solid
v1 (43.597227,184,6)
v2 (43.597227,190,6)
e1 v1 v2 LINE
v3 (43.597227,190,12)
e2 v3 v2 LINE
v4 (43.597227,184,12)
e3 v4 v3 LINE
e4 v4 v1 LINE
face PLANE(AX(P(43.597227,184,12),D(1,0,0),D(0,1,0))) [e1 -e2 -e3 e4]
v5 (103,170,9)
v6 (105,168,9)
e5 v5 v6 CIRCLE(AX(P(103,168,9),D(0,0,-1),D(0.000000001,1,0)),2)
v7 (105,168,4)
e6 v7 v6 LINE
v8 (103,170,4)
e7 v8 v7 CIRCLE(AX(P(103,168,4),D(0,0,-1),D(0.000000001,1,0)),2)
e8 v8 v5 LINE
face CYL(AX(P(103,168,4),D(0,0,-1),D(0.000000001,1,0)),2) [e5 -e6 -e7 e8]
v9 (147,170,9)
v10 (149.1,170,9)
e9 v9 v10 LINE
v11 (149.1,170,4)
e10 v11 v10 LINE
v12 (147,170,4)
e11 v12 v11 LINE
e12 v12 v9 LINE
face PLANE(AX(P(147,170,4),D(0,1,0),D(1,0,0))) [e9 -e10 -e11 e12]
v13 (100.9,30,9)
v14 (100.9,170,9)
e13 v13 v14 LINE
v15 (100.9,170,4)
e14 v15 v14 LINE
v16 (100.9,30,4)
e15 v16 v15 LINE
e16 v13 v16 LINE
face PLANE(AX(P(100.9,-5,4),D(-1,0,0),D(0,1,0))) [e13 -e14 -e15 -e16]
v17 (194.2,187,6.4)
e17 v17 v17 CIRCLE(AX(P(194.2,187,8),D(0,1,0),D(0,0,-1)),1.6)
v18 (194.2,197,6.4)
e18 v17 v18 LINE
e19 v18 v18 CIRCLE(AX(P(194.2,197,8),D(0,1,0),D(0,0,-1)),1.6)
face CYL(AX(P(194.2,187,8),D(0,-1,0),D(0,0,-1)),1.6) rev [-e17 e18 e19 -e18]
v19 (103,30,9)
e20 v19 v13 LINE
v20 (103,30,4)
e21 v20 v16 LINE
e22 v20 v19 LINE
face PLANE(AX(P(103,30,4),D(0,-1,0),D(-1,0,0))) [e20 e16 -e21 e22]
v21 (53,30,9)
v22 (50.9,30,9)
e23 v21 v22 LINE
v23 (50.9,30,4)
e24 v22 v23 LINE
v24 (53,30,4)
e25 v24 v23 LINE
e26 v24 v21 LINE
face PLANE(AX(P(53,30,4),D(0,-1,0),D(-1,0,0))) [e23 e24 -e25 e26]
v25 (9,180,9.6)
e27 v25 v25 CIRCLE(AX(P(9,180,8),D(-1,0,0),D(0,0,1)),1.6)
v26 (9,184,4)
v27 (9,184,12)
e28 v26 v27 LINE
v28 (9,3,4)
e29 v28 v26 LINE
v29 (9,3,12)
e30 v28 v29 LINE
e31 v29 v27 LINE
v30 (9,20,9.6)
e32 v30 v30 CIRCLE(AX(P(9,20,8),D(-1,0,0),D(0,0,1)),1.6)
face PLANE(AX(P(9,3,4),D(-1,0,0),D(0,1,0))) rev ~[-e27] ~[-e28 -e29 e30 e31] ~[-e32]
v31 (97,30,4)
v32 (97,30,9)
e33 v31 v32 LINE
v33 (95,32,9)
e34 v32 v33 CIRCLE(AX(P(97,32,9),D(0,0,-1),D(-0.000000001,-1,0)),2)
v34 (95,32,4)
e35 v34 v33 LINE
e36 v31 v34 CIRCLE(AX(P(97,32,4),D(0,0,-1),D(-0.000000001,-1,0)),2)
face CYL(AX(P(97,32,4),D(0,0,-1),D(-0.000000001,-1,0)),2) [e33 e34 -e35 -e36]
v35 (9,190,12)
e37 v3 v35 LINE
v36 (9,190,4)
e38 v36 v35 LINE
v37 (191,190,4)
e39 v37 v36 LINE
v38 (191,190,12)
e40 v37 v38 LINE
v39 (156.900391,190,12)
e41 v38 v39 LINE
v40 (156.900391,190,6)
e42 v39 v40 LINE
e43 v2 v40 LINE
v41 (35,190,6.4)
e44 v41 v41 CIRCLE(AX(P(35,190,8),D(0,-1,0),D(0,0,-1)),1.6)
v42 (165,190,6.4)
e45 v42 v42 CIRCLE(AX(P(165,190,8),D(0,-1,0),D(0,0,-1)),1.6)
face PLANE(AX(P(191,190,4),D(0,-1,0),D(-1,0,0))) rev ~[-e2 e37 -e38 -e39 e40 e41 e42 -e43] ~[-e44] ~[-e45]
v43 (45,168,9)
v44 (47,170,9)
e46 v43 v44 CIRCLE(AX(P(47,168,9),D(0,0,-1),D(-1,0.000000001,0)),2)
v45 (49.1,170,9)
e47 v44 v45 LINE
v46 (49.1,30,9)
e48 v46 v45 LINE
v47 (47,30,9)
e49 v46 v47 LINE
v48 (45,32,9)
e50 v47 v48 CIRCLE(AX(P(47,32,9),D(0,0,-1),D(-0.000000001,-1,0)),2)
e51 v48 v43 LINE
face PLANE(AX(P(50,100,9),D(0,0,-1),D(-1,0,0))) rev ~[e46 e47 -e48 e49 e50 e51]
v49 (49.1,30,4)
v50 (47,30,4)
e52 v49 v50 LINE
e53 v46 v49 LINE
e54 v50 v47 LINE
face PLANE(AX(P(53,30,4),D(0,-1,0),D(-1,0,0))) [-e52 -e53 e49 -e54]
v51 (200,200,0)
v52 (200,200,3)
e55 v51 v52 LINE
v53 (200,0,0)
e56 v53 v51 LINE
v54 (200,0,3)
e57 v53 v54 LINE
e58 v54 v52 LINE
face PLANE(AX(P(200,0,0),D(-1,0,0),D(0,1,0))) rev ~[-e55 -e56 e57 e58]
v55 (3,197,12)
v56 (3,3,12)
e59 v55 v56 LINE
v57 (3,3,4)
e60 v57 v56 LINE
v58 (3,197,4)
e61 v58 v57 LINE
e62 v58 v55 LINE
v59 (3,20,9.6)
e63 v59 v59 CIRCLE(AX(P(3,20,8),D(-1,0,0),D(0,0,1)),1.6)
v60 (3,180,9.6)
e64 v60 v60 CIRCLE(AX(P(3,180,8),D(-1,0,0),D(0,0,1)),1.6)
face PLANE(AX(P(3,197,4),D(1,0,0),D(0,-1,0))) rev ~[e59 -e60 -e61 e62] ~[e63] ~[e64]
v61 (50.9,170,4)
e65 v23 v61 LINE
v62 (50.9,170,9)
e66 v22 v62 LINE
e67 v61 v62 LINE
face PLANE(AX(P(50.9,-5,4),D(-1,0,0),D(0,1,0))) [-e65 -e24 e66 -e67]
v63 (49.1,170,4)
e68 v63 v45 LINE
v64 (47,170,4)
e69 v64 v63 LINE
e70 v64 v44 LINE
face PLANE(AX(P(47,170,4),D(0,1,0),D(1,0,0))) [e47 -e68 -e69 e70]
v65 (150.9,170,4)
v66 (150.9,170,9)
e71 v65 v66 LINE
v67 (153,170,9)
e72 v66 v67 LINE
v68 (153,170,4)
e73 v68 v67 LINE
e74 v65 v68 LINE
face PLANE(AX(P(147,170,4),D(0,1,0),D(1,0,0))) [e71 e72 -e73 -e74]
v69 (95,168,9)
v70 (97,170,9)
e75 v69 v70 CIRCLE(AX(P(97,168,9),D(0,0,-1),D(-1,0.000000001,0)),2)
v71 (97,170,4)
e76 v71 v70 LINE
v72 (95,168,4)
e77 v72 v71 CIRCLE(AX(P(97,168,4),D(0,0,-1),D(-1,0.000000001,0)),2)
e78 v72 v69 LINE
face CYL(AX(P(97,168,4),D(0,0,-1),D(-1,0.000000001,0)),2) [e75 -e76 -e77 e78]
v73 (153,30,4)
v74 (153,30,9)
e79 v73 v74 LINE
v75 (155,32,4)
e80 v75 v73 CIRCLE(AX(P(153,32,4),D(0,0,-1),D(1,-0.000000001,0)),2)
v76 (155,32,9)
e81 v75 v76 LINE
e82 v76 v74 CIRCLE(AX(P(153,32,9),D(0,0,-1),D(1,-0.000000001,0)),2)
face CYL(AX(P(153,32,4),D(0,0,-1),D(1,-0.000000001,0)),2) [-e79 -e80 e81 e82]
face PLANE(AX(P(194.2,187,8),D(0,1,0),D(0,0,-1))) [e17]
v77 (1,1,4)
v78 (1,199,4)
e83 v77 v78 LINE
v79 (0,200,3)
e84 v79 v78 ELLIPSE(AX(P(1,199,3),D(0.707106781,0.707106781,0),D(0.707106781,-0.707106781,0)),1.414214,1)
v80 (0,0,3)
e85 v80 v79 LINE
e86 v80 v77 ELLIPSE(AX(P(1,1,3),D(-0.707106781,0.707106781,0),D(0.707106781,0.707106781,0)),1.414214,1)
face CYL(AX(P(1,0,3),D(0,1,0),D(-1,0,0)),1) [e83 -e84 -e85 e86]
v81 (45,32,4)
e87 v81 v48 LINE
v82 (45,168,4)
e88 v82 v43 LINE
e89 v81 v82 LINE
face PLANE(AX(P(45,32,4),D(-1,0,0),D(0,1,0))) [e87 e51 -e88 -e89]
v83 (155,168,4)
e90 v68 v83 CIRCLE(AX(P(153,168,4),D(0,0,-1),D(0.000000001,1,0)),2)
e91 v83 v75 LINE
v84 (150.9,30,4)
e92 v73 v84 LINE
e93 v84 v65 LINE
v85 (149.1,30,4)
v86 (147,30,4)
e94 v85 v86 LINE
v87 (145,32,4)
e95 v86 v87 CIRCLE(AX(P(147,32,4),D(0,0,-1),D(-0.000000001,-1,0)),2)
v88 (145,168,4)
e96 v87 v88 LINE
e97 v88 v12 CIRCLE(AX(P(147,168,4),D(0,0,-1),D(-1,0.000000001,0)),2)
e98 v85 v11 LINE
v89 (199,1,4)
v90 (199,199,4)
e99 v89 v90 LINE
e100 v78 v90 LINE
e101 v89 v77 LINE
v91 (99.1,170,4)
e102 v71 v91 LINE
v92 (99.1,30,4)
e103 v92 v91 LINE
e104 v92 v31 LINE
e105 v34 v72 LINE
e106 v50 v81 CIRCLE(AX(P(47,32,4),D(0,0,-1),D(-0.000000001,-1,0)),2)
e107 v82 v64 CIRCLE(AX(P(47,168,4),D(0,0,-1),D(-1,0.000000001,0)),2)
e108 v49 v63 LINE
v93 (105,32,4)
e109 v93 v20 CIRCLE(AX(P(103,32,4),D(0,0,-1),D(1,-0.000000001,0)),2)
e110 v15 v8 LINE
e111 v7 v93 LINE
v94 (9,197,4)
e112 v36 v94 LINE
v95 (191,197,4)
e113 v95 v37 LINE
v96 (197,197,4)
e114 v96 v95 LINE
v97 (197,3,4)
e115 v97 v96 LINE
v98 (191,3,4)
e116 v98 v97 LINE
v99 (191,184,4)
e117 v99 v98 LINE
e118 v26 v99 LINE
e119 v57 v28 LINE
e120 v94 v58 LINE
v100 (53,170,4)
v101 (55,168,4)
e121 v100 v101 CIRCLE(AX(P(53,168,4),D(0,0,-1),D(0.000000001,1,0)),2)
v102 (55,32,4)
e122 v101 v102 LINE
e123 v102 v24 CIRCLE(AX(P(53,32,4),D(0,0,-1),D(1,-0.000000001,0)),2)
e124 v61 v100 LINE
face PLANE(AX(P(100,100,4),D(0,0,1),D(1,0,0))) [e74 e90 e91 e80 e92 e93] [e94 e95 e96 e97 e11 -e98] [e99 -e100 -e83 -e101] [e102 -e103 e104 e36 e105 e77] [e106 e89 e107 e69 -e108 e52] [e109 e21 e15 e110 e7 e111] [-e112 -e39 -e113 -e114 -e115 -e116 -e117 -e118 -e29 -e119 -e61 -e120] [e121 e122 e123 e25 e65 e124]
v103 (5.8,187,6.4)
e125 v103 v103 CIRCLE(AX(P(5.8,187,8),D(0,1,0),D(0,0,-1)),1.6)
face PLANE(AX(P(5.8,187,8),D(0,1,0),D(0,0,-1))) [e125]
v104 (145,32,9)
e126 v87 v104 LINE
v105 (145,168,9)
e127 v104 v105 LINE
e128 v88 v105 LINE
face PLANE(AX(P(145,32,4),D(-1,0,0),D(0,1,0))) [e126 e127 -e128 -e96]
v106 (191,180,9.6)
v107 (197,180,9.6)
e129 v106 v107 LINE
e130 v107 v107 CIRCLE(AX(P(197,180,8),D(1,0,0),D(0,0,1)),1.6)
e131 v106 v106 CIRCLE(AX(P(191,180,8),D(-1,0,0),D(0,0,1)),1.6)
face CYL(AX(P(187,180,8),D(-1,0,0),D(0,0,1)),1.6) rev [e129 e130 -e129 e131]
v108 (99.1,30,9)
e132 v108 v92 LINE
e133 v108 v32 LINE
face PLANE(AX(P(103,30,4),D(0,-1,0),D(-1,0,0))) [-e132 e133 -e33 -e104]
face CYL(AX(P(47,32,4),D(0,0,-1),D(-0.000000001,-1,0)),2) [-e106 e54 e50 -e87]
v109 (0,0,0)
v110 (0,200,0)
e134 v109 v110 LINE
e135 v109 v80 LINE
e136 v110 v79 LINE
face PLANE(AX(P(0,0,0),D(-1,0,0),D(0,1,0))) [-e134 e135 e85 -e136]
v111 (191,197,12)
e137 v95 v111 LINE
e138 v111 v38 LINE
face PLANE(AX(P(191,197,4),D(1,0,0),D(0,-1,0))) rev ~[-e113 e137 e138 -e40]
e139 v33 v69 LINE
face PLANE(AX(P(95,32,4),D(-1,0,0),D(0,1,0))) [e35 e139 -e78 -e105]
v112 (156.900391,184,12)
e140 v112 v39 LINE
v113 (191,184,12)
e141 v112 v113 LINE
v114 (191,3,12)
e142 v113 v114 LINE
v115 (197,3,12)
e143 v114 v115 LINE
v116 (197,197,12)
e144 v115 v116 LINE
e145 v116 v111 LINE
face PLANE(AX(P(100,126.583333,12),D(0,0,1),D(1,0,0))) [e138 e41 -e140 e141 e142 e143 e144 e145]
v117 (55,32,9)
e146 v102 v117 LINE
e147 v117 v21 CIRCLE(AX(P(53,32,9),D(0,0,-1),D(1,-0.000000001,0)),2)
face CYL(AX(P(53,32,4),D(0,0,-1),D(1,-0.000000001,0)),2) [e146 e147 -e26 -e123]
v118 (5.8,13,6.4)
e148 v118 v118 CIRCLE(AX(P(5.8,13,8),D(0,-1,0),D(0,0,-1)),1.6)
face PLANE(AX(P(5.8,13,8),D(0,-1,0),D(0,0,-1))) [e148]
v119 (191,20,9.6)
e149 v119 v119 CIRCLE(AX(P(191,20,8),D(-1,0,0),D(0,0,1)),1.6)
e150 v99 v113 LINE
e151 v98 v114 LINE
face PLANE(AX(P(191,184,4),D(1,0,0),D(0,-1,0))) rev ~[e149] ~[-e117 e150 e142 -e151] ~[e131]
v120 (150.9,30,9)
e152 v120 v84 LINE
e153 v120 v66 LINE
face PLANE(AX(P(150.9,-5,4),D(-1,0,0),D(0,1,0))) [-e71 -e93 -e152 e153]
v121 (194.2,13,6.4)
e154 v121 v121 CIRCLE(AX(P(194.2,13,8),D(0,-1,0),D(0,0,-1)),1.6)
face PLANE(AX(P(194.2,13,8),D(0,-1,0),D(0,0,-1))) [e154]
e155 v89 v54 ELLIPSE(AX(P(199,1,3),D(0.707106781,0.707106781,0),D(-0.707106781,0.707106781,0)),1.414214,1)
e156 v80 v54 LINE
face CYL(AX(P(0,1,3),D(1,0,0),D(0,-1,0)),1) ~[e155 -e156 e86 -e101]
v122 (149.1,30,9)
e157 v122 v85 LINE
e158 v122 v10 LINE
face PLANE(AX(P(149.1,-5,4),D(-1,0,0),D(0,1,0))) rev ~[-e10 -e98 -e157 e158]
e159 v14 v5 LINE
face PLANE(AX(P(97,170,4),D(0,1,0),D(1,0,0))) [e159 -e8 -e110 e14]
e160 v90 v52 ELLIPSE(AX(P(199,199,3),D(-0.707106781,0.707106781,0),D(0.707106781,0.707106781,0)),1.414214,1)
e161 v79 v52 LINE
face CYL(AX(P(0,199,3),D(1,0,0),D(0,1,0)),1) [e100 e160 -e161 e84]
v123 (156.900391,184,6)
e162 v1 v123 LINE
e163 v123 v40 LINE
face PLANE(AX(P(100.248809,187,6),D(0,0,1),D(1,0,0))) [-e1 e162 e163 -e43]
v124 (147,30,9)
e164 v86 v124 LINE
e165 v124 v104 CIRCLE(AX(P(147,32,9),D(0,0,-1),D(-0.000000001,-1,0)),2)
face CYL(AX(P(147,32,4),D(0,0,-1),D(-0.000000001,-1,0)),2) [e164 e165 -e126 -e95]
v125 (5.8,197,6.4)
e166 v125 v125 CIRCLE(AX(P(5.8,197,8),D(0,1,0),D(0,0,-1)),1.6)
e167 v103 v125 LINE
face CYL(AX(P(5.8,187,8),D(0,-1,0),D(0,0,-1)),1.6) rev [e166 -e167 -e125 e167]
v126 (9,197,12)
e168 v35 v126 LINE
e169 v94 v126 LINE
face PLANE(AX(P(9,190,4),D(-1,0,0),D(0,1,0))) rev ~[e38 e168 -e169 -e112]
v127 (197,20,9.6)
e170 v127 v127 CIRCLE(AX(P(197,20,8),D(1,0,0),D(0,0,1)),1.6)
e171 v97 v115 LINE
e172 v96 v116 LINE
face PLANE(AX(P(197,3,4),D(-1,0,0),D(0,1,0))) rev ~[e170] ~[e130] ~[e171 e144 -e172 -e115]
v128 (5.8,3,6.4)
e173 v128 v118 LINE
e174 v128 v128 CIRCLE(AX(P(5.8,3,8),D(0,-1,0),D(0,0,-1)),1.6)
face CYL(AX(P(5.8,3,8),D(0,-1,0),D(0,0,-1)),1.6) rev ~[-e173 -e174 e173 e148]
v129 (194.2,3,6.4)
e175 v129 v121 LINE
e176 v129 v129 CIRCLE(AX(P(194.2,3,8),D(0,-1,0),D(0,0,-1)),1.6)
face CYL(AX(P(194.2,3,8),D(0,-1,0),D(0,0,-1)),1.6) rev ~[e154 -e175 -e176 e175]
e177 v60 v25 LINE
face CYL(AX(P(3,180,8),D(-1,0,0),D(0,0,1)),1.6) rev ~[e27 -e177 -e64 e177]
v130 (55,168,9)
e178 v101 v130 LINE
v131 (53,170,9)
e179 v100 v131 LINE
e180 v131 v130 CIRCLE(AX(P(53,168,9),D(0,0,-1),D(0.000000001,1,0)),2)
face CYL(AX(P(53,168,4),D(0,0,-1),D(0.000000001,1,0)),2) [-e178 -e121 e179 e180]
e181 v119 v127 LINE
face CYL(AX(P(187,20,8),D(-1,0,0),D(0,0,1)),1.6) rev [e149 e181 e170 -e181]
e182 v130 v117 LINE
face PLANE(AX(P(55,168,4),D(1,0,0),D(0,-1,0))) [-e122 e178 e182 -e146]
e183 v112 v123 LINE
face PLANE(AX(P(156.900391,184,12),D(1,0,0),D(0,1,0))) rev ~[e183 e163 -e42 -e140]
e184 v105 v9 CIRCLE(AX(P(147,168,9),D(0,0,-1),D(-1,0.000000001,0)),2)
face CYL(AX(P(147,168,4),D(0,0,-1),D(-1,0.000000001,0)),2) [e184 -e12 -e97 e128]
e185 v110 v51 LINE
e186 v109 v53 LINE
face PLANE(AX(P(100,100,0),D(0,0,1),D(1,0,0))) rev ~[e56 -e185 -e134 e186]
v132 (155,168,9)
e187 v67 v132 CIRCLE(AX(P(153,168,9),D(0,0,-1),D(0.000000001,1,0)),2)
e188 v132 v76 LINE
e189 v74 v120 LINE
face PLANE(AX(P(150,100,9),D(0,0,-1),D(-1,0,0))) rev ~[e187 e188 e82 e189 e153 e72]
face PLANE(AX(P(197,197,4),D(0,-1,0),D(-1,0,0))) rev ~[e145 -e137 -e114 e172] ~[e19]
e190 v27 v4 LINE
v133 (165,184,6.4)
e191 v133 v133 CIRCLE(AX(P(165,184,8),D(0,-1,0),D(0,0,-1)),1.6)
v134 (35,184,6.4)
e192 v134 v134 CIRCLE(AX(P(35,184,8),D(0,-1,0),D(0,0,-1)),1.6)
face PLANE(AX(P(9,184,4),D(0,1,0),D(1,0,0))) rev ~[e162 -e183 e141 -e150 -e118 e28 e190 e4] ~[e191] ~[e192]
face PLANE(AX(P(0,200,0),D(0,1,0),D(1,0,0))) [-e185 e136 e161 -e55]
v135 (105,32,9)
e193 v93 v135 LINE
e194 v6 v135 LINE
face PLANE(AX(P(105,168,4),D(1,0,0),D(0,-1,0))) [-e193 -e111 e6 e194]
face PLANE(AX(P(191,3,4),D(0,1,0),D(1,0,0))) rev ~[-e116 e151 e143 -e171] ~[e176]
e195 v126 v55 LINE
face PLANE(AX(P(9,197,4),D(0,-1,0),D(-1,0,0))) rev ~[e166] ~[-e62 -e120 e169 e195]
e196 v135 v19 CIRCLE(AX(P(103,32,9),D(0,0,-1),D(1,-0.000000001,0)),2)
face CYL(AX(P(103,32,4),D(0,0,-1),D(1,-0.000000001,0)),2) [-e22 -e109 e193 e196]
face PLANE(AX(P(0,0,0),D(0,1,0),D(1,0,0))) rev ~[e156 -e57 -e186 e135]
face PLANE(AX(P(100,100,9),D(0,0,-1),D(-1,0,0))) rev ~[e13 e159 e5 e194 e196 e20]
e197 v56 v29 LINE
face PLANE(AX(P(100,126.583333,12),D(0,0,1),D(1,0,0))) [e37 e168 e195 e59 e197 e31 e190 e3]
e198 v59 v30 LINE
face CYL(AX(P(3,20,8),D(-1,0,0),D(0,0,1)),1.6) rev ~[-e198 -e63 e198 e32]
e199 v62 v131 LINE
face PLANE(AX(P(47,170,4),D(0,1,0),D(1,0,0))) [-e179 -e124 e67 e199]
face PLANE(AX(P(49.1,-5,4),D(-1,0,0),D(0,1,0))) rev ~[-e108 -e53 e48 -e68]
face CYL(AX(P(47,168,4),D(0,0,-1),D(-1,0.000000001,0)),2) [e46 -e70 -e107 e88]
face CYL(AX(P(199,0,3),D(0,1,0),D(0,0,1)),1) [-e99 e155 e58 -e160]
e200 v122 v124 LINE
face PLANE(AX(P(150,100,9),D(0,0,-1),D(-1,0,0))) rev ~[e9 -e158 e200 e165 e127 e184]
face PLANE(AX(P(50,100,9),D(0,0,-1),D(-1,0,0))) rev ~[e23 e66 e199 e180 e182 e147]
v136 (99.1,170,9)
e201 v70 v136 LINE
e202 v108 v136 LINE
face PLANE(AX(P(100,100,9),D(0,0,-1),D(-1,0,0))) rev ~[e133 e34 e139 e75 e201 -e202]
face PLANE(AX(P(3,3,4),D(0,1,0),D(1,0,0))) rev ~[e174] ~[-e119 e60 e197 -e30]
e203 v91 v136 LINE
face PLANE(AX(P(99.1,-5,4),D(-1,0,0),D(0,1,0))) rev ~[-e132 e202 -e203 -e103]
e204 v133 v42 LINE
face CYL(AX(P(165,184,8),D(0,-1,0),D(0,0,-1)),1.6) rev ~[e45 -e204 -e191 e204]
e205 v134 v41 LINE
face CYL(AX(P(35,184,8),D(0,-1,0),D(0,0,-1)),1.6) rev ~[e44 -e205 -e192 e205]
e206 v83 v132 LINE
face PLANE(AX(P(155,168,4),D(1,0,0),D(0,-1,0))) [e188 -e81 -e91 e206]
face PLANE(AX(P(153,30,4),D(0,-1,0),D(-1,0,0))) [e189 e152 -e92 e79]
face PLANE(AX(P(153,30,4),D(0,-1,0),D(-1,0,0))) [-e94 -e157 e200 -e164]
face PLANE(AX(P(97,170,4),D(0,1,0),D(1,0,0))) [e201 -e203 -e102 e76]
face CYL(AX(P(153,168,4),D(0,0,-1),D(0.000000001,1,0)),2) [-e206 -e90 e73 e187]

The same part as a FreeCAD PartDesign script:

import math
import FreeCAD as App
import Part
import Sketcher

V = App.Vector


def edges_at(feature, points):
    """Names of the edges that pass closest to the given points."""
    edges = feature.Shape.Edges
    near = lambda p: min(range(len(edges)), key=lambda i: edges[i].distToShape(Part.Vertex(*p))[0])
    return sorted({f"Edge{near(p) + 1}" for p in points})

doc = App.newDocument("Part")
body = doc.addObject("PartDesign::Body", "Body")

# Sketch on XY plane
sketch1 = body.newObject("Sketcher::SketchObject", "Sketch")
sketch1.AttachmentSupport = (doc.getObject("XY_Plane"), [""])
sketch1.MapMode = "FlatFace"
sketch1.addGeometry(Part.LineSegment(V(0, 200, 0), V(0, 0, 0)), False)
sketch1.addGeometry(Part.LineSegment(V(0, 0, 0), V(200, 0, 0)), False)
sketch1.addGeometry(Part.LineSegment(V(200, 0, 0), V(200, 200, 0)), False)
sketch1.addGeometry(Part.LineSegment(V(200, 200, 0), V(0, 200, 0)), False)
sketch1.addConstraint(Sketcher.Constraint("Coincident", 0, 2, 1, 1))
sketch1.addConstraint(Sketcher.Constraint("Coincident", 1, 2, 2, 1))
sketch1.addConstraint(Sketcher.Constraint("Coincident", 2, 2, 3, 1))
sketch1.addConstraint(Sketcher.Constraint("Coincident", 3, 2, 0, 1))
sketch1.addConstraint(Sketcher.Constraint("Vertical", 0))
sketch1.addConstraint(Sketcher.Constraint("Horizontal", 1))
sketch1.addConstraint(Sketcher.Constraint("Vertical", 2))
sketch1.addConstraint(Sketcher.Constraint("Horizontal", 3))
sketch1.addConstraint(Sketcher.Constraint("Coincident", 0, 2, -1, 1))
sketch1.addConstraint(Sketcher.Constraint("Equal", 3, 0))
sketch1.addConstraint(Sketcher.Constraint("DistanceX", 1, 1, 1, 2, 200.0))
pad1 = body.newObject("PartDesign::Pad", "Pad")
pad1.Profile = sketch1
pad1.Length = 4

# Sketch on XY plane
sketch2 = body.newObject("Sketcher::SketchObject", "Sketch001")
sketch2.AttachmentSupport = (doc.getObject("XY_Plane"), [""])
sketch2.MapMode = "FlatFace"
sketch2.AttachmentOffset = App.Placement(V(0, 0, 4), App.Rotation())
sketch2.addGeometry(Part.LineSegment(V(3, 3, 0), V(9, 3, 0)), False)
sketch2.addGeometry(Part.LineSegment(V(9, 3, 0), V(9, 184, 0)), False)
sketch2.addGeometry(Part.LineSegment(V(9, 184, 0), V(191, 184, 0)), False)
sketch2.addGeometry(Part.LineSegment(V(191, 184, 0), V(191, 3, 0)), False)
sketch2.addGeometry(Part.LineSegment(V(191, 3, 0), V(197, 3, 0)), False)
sketch2.addGeometry(Part.LineSegment(V(197, 3, 0), V(197, 197, 0)), False)
sketch2.addGeometry(Part.LineSegment(V(197, 197, 0), V(191, 197, 0)), False)
sketch2.addGeometry(Part.LineSegment(V(191, 197, 0), V(191, 190, 0)), False)
sketch2.addGeometry(Part.LineSegment(V(191, 190, 0), V(9, 190, 0)), False)
sketch2.addGeometry(Part.LineSegment(V(9, 190, 0), V(9, 197, 0)), False)
sketch2.addGeometry(Part.LineSegment(V(9, 197, 0), V(3, 197, 0)), False)
sketch2.addGeometry(Part.LineSegment(V(3, 197, 0), V(3, 3, 0)), False)
sketch2.addConstraint(Sketcher.Constraint("Coincident", 0, 2, 1, 1))
sketch2.addConstraint(Sketcher.Constraint("Coincident", 1, 2, 2, 1))
sketch2.addConstraint(Sketcher.Constraint("Coincident", 2, 2, 3, 1))
sketch2.addConstraint(Sketcher.Constraint("Coincident", 3, 2, 4, 1))
sketch2.addConstraint(Sketcher.Constraint("Coincident", 4, 2, 5, 1))
sketch2.addConstraint(Sketcher.Constraint("Coincident", 5, 2, 6, 1))
sketch2.addConstraint(Sketcher.Constraint("Coincident", 6, 2, 7, 1))
sketch2.addConstraint(Sketcher.Constraint("Coincident", 7, 2, 8, 1))
sketch2.addConstraint(Sketcher.Constraint("Coincident", 8, 2, 9, 1))
sketch2.addConstraint(Sketcher.Constraint("Coincident", 9, 2, 10, 1))
sketch2.addConstraint(Sketcher.Constraint("Coincident", 10, 2, 11, 1))
sketch2.addConstraint(Sketcher.Constraint("Coincident", 11, 2, 0, 1))
sketch2.addConstraint(Sketcher.Constraint("Horizontal", 0))
sketch2.addConstraint(Sketcher.Constraint("Vertical", 1))
sketch2.addConstraint(Sketcher.Constraint("Horizontal", 2))
sketch2.addConstraint(Sketcher.Constraint("Vertical", 3))
sketch2.addConstraint(Sketcher.Constraint("Horizontal", 4))
sketch2.addConstraint(Sketcher.Constraint("Vertical", 5))
sketch2.addConstraint(Sketcher.Constraint("Horizontal", 6))
sketch2.addConstraint(Sketcher.Constraint("Vertical", 7))
sketch2.addConstraint(Sketcher.Constraint("Horizontal", 8))
sketch2.addConstraint(Sketcher.Constraint("Vertical", 9))
sketch2.addConstraint(Sketcher.Constraint("Horizontal", 10))
sketch2.addConstraint(Sketcher.Constraint("Vertical", 11))
sketch2.addConstraint(Sketcher.Constraint("Horizontal", 0, 2, 3, 2))
sketch2.addConstraint(Sketcher.Constraint("Horizontal", 6, 2, 9, 2))
sketch2.addConstraint(Sketcher.Constraint("Vertical", 3, 2, 6, 2))
sketch2.addConstraint(Sketcher.Constraint("Vertical", 1, 2, 8, 2))
sketch2.addConstraint(Sketcher.Constraint("Equal", 0, 4))
sketch2.addConstraint(Sketcher.Constraint("DistanceX", 0, 1, 0, 2, 6.0))
sketch2.addConstraint(Sketcher.Constraint("DistanceX", 2, 1, 2, 2, 182.0))
sketch2.addConstraint(Sketcher.Constraint("DistanceY", 1, 1, 1, 2, 181.0))
sketch2.addConstraint(Sketcher.Constraint("DistanceY", 5, 1, 5, 2, 194.0))
sketch2.addConstraint(Sketcher.Constraint("DistanceY", 7, 2, 7, 1, 7.0))
sketch2.addConstraint(Sketcher.Constraint("DistanceX", -1, 1, 0, 2, 9.0))
sketch2.addConstraint(Sketcher.Constraint("DistanceY", -1, 1, 0, 2, 3.0))
pad2 = body.newObject("PartDesign::Pad", "Pad001")
pad2.Profile = sketch2
pad2.Length = 8

# Sketch on XY plane
sketch3 = body.newObject("Sketcher::SketchObject", "Sketch002")
sketch3.AttachmentSupport = (doc.getObject("XY_Plane"), [""])
sketch3.MapMode = "FlatFace"
sketch3.AttachmentOffset = App.Placement(V(0, 0, 4), App.Rotation())
sketch3.addGeometry(Part.LineSegment(V(53, 170, 0), V(47, 170, 0)), False)
sketch3.addGeometry(Part.ArcOfCircle(Part.Circle(V(47, 168, 0), V(0, 0, 1), 2), math.radians(90), math.radians(180)), False)
sketch3.addGeometry(Part.LineSegment(V(45, 168, 0), V(45, 32, 0)), False)
sketch3.addGeometry(Part.ArcOfCircle(Part.Circle(V(47, 32, 0), V(0, 0, 1), 2), math.radians(-180), math.radians(-90)), False)
sketch3.addGeometry(Part.LineSegment(V(47, 30, 0), V(53, 30, 0)), False)
sketch3.addGeometry(Part.ArcOfCircle(Part.Circle(V(53, 32, 0), V(0, 0, 1), 2), math.radians(-90), math.radians(0)), False)
sketch3.addGeometry(Part.LineSegment(V(55, 32, 0), V(55, 168, 0)), False)
sketch3.addGeometry(Part.ArcOfCircle(Part.Circle(V(53, 168, 0), V(0, 0, 1), 2), math.radians(0), math.radians(90)), False)
sketch3.addGeometry(Part.LineSegment(V(103, 170, 0), V(97, 170, 0)), False)
sketch3.addGeometry(Part.ArcOfCircle(Part.Circle(V(97, 168, 0), V(0, 0, 1), 2), math.radians(90), math.radians(180)), False)
sketch3.addGeometry(Part.LineSegment(V(95, 168, 0), V(95, 32, 0)), False)
sketch3.addGeometry(Part.ArcOfCircle(Part.Circle(V(97, 32, 0), V(0, 0, 1), 2), math.radians(-180), math.radians(-90)), False)
sketch3.addGeometry(Part.LineSegment(V(97, 30, 0), V(103, 30, 0)), False)
sketch3.addGeometry(Part.ArcOfCircle(Part.Circle(V(103, 32, 0), V(0, 0, 1), 2), math.radians(-90), math.radians(0)), False)
sketch3.addGeometry(Part.LineSegment(V(105, 32, 0), V(105, 168, 0)), False)
sketch3.addGeometry(Part.ArcOfCircle(Part.Circle(V(103, 168, 0), V(0, 0, 1), 2), math.radians(0), math.radians(90)), False)
sketch3.addGeometry(Part.LineSegment(V(153, 170, 0), V(147, 170, 0)), False)
sketch3.addGeometry(Part.ArcOfCircle(Part.Circle(V(147, 168, 0), V(0, 0, 1), 2), math.radians(90), math.radians(180)), False)
sketch3.addGeometry(Part.LineSegment(V(145, 168, 0), V(145, 32, 0)), False)
sketch3.addGeometry(Part.ArcOfCircle(Part.Circle(V(147, 32, 0), V(0, 0, 1), 2), math.radians(-180), math.radians(-90)), False)
sketch3.addGeometry(Part.LineSegment(V(147, 30, 0), V(153, 30, 0)), False)
sketch3.addGeometry(Part.ArcOfCircle(Part.Circle(V(153, 32, 0), V(0, 0, 1), 2), math.radians(-90), math.radians(0)), False)
sketch3.addGeometry(Part.LineSegment(V(155, 32, 0), V(155, 168, 0)), False)
sketch3.addGeometry(Part.ArcOfCircle(Part.Circle(V(153, 168, 0), V(0, 0, 1), 2), math.radians(0), math.radians(90)), False)
sketch3.addConstraint(Sketcher.Constraint("Tangent", 0, 2, 1, 1))
sketch3.addConstraint(Sketcher.Constraint("Tangent", 1, 2, 2, 1))
sketch3.addConstraint(Sketcher.Constraint("Tangent", 2, 2, 3, 1))
sketch3.addConstraint(Sketcher.Constraint("Tangent", 3, 2, 4, 1))
sketch3.addConstraint(Sketcher.Constraint("Tangent", 4, 2, 5, 1))
sketch3.addConstraint(Sketcher.Constraint("Tangent", 5, 2, 6, 1))
sketch3.addConstraint(Sketcher.Constraint("Tangent", 6, 2, 7, 1))
sketch3.addConstraint(Sketcher.Constraint("Tangent", 7, 2, 0, 1))
sketch3.addConstraint(Sketcher.Constraint("Tangent", 8, 2, 9, 1))
sketch3.addConstraint(Sketcher.Constraint("Tangent", 9, 2, 10, 1))
sketch3.addConstraint(Sketcher.Constraint("Tangent", 10, 2, 11, 1))
sketch3.addConstraint(Sketcher.Constraint("Tangent", 11, 2, 12, 1))
sketch3.addConstraint(Sketcher.Constraint("Tangent", 12, 2, 13, 1))
sketch3.addConstraint(Sketcher.Constraint("Tangent", 13, 2, 14, 1))
sketch3.addConstraint(Sketcher.Constraint("Tangent", 14, 2, 15, 1))
sketch3.addConstraint(Sketcher.Constraint("Tangent", 15, 2, 8, 1))
sketch3.addConstraint(Sketcher.Constraint("Tangent", 16, 2, 17, 1))
sketch3.addConstraint(Sketcher.Constraint("Tangent", 17, 2, 18, 1))
sketch3.addConstraint(Sketcher.Constraint("Tangent", 18, 2, 19, 1))
sketch3.addConstraint(Sketcher.Constraint("Tangent", 19, 2, 20, 1))
sketch3.addConstraint(Sketcher.Constraint("Tangent", 20, 2, 21, 1))
sketch3.addConstraint(Sketcher.Constraint("Tangent", 21, 2, 22, 1))
sketch3.addConstraint(Sketcher.Constraint("Tangent", 22, 2, 23, 1))
sketch3.addConstraint(Sketcher.Constraint("Tangent", 23, 2, 16, 1))
sketch3.addConstraint(Sketcher.Constraint("Horizontal", 0))
sketch3.addConstraint(Sketcher.Constraint("Vertical", 2))
sketch3.addConstraint(Sketcher.Constraint("Horizontal", 4))
sketch3.addConstraint(Sketcher.Constraint("Vertical", 6))
sketch3.addConstraint(Sketcher.Constraint("Horizontal", 8))
sketch3.addConstraint(Sketcher.Constraint("Vertical", 10))
sketch3.addConstraint(Sketcher.Constraint("Horizontal", 12))
sketch3.addConstraint(Sketcher.Constraint("Vertical", 14))
sketch3.addConstraint(Sketcher.Constraint("Horizontal", 16))
sketch3.addConstraint(Sketcher.Constraint("Vertical", 18))
sketch3.addConstraint(Sketcher.Constraint("Horizontal", 20))
sketch3.addConstraint(Sketcher.Constraint("Vertical", 22))
sketch3.addConstraint(Sketcher.Constraint("Equal", 1, 3))
sketch3.addConstraint(Sketcher.Constraint("Equal", 3, 5))
sketch3.addConstraint(Sketcher.Constraint("Equal", 5, 7))
sketch3.addConstraint(Sketcher.Constraint("Equal", 7, 9))
sketch3.addConstraint(Sketcher.Constraint("Equal", 9, 11))
sketch3.addConstraint(Sketcher.Constraint("Equal", 11, 13))
sketch3.addConstraint(Sketcher.Constraint("Equal", 13, 15))
sketch3.addConstraint(Sketcher.Constraint("Equal", 15, 17))
sketch3.addConstraint(Sketcher.Constraint("Equal", 17, 19))
sketch3.addConstraint(Sketcher.Constraint("Equal", 19, 21))
sketch3.addConstraint(Sketcher.Constraint("Equal", 21, 23))
sketch3.addConstraint(Sketcher.Constraint("Horizontal", 7, 3, 9, 3))
sketch3.addConstraint(Sketcher.Constraint("Horizontal", 5, 3, 11, 3))
sketch3.addConstraint(Sketcher.Constraint("Horizontal", 15, 3, 17, 3))
sketch3.addConstraint(Sketcher.Constraint("Horizontal", 13, 3, 19, 3))
sketch3.addConstraint(Sketcher.Constraint("Equal", 4, 8))
sketch3.addConstraint(Sketcher.Constraint("Equal", 12, 16))
sketch3.addConstraint(Sketcher.Constraint("Radius", 1, 2.0))
sketch3.addConstraint(Sketcher.Constraint("DistanceX", 0, 2, 0, 1, 6.0))
sketch3.addConstraint(Sketcher.Constraint("DistanceY", 2, 2, 2, 1, 136.0))
sketch3.addConstraint(Sketcher.Constraint("DistanceX", -1, 1, 1, 3, 47.0))
sketch3.addConstraint(Sketcher.Constraint("DistanceY", -1, 1, 1, 3, 168.0))
sketch3.addConstraint(Sketcher.Constraint("DistanceX", -1, 1, 9, 3, 97.0))
sketch3.addConstraint(Sketcher.Constraint("DistanceX", -1, 1, 17, 3, 147.0))
pad3 = body.newObject("PartDesign::Pad", "Pad002")
pad3.Profile = sketch3
pad3.Length = 5
doc.recompute()

fillet = body.newObject("PartDesign::Fillet", "Fillet")
fillet.Base = (pad3, edges_at(pad3, [
    (200, 100, 4),
    (100, 200, 4),
    (0, 100, 4),
    (100, 0, 4),
]))
fillet.Radius = 1

# Sketch on XY plane
sketch4 = body.newObject("Sketcher::SketchObject", "Sketch003")
sketch4.AttachmentSupport = (doc.getObject("XY_Plane"), [""])
sketch4.MapMode = "FlatFace"
sketch4.AttachmentOffset = App.Placement(V(0, 0, 4), App.Rotation())
sketch4.addGeometry(Part.LineSegment(V(99.1, 175, 0), V(99.1, -5, 0)), False)
sketch4.addGeometry(Part.LineSegment(V(99.1, -5, 0), V(100.9, -5, 0)), False)
sketch4.addGeometry(Part.LineSegment(V(100.9, -5, 0), V(100.9, 175, 0)), False)
sketch4.addGeometry(Part.LineSegment(V(100.9, 175, 0), V(99.1, 175, 0)), False)
sketch4.addGeometry(Part.LineSegment(V(149.1, 175, 0), V(149.1, -5, 0)), False)
sketch4.addGeometry(Part.LineSegment(V(149.1, -5, 0), V(150.9, -5, 0)), False)
sketch4.addGeometry(Part.LineSegment(V(150.9, -5, 0), V(150.9, 175, 0)), False)
sketch4.addGeometry(Part.LineSegment(V(150.9, 175, 0), V(149.1, 175, 0)), False)
sketch4.addGeometry(Part.LineSegment(V(49.1, 175, 0), V(49.1, -5, 0)), False)
sketch4.addGeometry(Part.LineSegment(V(49.1, -5, 0), V(50.9, -5, 0)), False)
sketch4.addGeometry(Part.LineSegment(V(50.9, -5, 0), V(50.9, 175, 0)), False)
sketch4.addGeometry(Part.LineSegment(V(50.9, 175, 0), V(49.1, 175, 0)), False)
sketch4.addConstraint(Sketcher.Constraint("Coincident", 0, 2, 1, 1))
sketch4.addConstraint(Sketcher.Constraint("Coincident", 1, 2, 2, 1))
sketch4.addConstraint(Sketcher.Constraint("Coincident", 2, 2, 3, 1))
sketch4.addConstraint(Sketcher.Constraint("Coincident", 3, 2, 0, 1))
sketch4.addConstraint(Sketcher.Constraint("Coincident", 4, 2, 5, 1))
sketch4.addConstraint(Sketcher.Constraint("Coincident", 5, 2, 6, 1))
sketch4.addConstraint(Sketcher.Constraint("Coincident", 6, 2, 7, 1))
sketch4.addConstraint(Sketcher.Constraint("Coincident", 7, 2, 4, 1))
sketch4.addConstraint(Sketcher.Constraint("Coincident", 8, 2, 9, 1))
sketch4.addConstraint(Sketcher.Constraint("Coincident", 9, 2, 10, 1))
sketch4.addConstraint(Sketcher.Constraint("Coincident", 10, 2, 11, 1))
sketch4.addConstraint(Sketcher.Constraint("Coincident", 11, 2, 8, 1))
sketch4.addConstraint(Sketcher.Constraint("Vertical", 0))
sketch4.addConstraint(Sketcher.Constraint("Horizontal", 1))
sketch4.addConstraint(Sketcher.Constraint("Vertical", 2))
sketch4.addConstraint(Sketcher.Constraint("Horizontal", 3))
sketch4.addConstraint(Sketcher.Constraint("Vertical", 4))
sketch4.addConstraint(Sketcher.Constraint("Horizontal", 5))
sketch4.addConstraint(Sketcher.Constraint("Vertical", 6))
sketch4.addConstraint(Sketcher.Constraint("Horizontal", 7))
sketch4.addConstraint(Sketcher.Constraint("Vertical", 8))
sketch4.addConstraint(Sketcher.Constraint("Horizontal", 9))
sketch4.addConstraint(Sketcher.Constraint("Vertical", 10))
sketch4.addConstraint(Sketcher.Constraint("Horizontal", 11))
sketch4.addConstraint(Sketcher.Constraint("Horizontal", 1, 2, 4, 2))
sketch4.addConstraint(Sketcher.Constraint("Horizontal", 3, 2, 6, 2))
sketch4.addConstraint(Sketcher.Constraint("Horizontal", 5, 2, 8, 2))
sketch4.addConstraint(Sketcher.Constraint("Horizontal", 7, 2, 10, 2))
sketch4.addConstraint(Sketcher.Constraint("Equal", 3, 5))
sketch4.addConstraint(Sketcher.Constraint("Equal", 7, 9))
sketch4.addConstraint(Sketcher.Constraint("DistanceY", 0, 2, 0, 1, 180.0))
sketch4.addConstraint(Sketcher.Constraint("DistanceX", 1, 1, 1, 2, 1.8))
sketch4.addConstraint(Sketcher.Constraint("DistanceY", 0, 2, -1, 1, 5.0))
sketch4.addConstraint(Sketcher.Constraint("DistanceX", 0, 2, 4, 2, 50.0))
sketch4.addConstraint(Sketcher.Constraint("DistanceX", 8, 2, 0, 2, 50.0))
sketch4.addConstraint(Sketcher.Constraint("DistanceX", -1, 1, 0, 2, 99.1))
pocket1 = body.newObject("PartDesign::Pocket", "Pocket")
pocket1.Profile = sketch4
pocket1.Type = "ThroughAll"
pocket1.Reversed = True

# Sketch on YZ plane
sketch5 = body.newObject("Sketcher::SketchObject", "Sketch004")
sketch5.AttachmentSupport = (doc.getObject("YZ_Plane"), [""])
sketch5.MapMode = "FlatFace"
sketch5.AttachmentOffset = App.Placement(V(0, 0, 3), App.Rotation())
sketch5.addGeometry(Part.Circle(V(180, 8, 0), V(0, 0, 1), 1.6), False)
sketch5.addGeometry(Part.Circle(V(20, 8, 0), V(0, 0, 1), 1.6), False)
sketch5.addConstraint(Sketcher.Constraint("Equal", 0, 1))
sketch5.addConstraint(Sketcher.Constraint("Horizontal", 0, 3, 1, 3))
sketch5.addConstraint(Sketcher.Constraint("Diameter", 0, 3.2))
sketch5.addConstraint(Sketcher.Constraint("DistanceX", -1, 1, 0, 3, 180.0))
sketch5.addConstraint(Sketcher.Constraint("DistanceY", -1, 1, 0, 3, 8.0))
sketch5.addConstraint(Sketcher.Constraint("DistanceX", -1, 1, 1, 3, 20.0))
pocket2 = body.newObject("PartDesign::Pocket", "Pocket001")
pocket2.Profile = sketch5
pocket2.Length = 10
pocket2.Reversed = True

# Sketch on YZ plane
sketch6 = body.newObject("Sketcher::SketchObject", "Sketch005")
sketch6.AttachmentSupport = (doc.getObject("YZ_Plane"), [""])
sketch6.MapMode = "FlatFace"
sketch6.AttachmentOffset = App.Placement(V(0, 0, 187), App.Rotation())
sketch6.addGeometry(Part.Circle(V(180, 8, 0), V(0, 0, 1), 1.6), False)
sketch6.addGeometry(Part.Circle(V(20, 8, 0), V(0, 0, 1), 1.6), False)
sketch6.addConstraint(Sketcher.Constraint("Equal", 0, 1))
sketch6.addConstraint(Sketcher.Constraint("Horizontal", 0, 3, 1, 3))
sketch6.addConstraint(Sketcher.Constraint("Diameter", 0, 3.2))
sketch6.addConstraint(Sketcher.Constraint("DistanceX", -1, 1, 0, 3, 180.0))
sketch6.addConstraint(Sketcher.Constraint("DistanceY", -1, 1, 0, 3, 8.0))
sketch6.addConstraint(Sketcher.Constraint("DistanceX", -1, 1, 1, 3, 20.0))
pocket3 = body.newObject("PartDesign::Pocket", "Pocket002")
pocket3.Profile = sketch6
pocket3.Length = 10
pocket3.Reversed = True

# Sketch on XZ plane
sketch7 = body.newObject("Sketcher::SketchObject", "Sketch006")
sketch7.AttachmentSupport = (doc.getObject("XZ_Plane"), [""])
sketch7.MapMode = "FlatFace"
sketch7.AttachmentOffset = App.Placement(V(0, 0, -184), App.Rotation())
sketch7.addGeometry(Part.Circle(V(35, 8, 0), V(0, 0, 1), 1.6), False)
sketch7.addGeometry(Part.Circle(V(165, 8, 0), V(0, 0, 1), 1.6), False)
sketch7.addConstraint(Sketcher.Constraint("Equal", 0, 1))
sketch7.addConstraint(Sketcher.Constraint("Horizontal", 0, 3, 1, 3))
sketch7.addConstraint(Sketcher.Constraint("Diameter", 0, 3.2))
sketch7.addConstraint(Sketcher.Constraint("DistanceX", -1, 1, 0, 3, 35.0))
sketch7.addConstraint(Sketcher.Constraint("DistanceY", -1, 1, 0, 3, 8.0))
sketch7.addConstraint(Sketcher.Constraint("DistanceX", -1, 1, 1, 3, 165.0))
pocket4 = body.newObject("PartDesign::Pocket", "Pocket003")
pocket4.Profile = sketch7
pocket4.Length = 10

# Sketch on XZ plane
sketch8 = body.newObject("Sketcher::SketchObject", "Sketch007")
sketch8.AttachmentSupport = (doc.getObject("XZ_Plane"), [""])
sketch8.MapMode = "FlatFace"
sketch8.AttachmentOffset = App.Placement(V(0, 0, -3), App.Rotation())
sketch8.addGeometry(Part.Circle(V(194.2, 8, 0), V(0, 0, 1), 1.6), False)
sketch8.addGeometry(Part.Circle(V(5.8, 8, 0), V(0, 0, 1), 1.6), False)
sketch8.addConstraint(Sketcher.Constraint("Equal", 0, 1))
sketch8.addConstraint(Sketcher.Constraint("Horizontal", 0, 3, 1, 3))
sketch8.addConstraint(Sketcher.Constraint("Diameter", 0, 3.2))
sketch8.addConstraint(Sketcher.Constraint("DistanceY", -1, 1, 0, 3, 8.0))
sketch8.addConstraint(Sketcher.Constraint("DistanceX", -1, 1, 0, 3, 194.2))
sketch8.addConstraint(Sketcher.Constraint("DistanceX", -1, 1, 1, 3, 5.8))
pocket5 = body.newObject("PartDesign::Pocket", "Pocket004")
pocket5.Profile = sketch8
pocket5.Length = 10

# Sketch on XY plane
sketch9 = body.newObject("Sketcher::SketchObject", "Sketch008")
sketch9.AttachmentSupport = (doc.getObject("XY_Plane"), [""])
sketch9.MapMode = "FlatFace"
sketch9.AttachmentOffset = App.Placement(V(0, 0, 12), App.Rotation())
sketch9.addGeometry(Part.LineSegment(V(44, 190, 0), V(44, 184, 0)), False)
sketch9.addGeometry(Part.LineSegment(V(44, 184, 0), V(157, 184, 0)), False)
sketch9.addGeometry(Part.LineSegment(V(157, 184, 0), V(157, 190, 0)), False)
sketch9.addGeometry(Part.LineSegment(V(157, 190, 0), V(44, 190, 0)), False)
sketch9.addConstraint(Sketcher.Constraint("Coincident", 0, 2, 1, 1))
sketch9.addConstraint(Sketcher.Constraint("Coincident", 1, 2, 2, 1))
sketch9.addConstraint(Sketcher.Constraint("Coincident", 2, 2, 3, 1))
sketch9.addConstraint(Sketcher.Constraint("Coincident", 3, 2, 0, 1))
sketch9.addConstraint(Sketcher.Constraint("Vertical", 0))
sketch9.addConstraint(Sketcher.Constraint("Horizontal", 1))
sketch9.addConstraint(Sketcher.Constraint("Vertical", 2))
sketch9.addConstraint(Sketcher.Constraint("Horizontal", 3))
sketch9.addConstraint(Sketcher.Constraint("DistanceY", 0, 2, 0, 1, 6.0))
sketch9.addConstraint(Sketcher.Constraint("DistanceY", -1, 1, 0, 2, 184.0))
sketch9.addConstraint(Sketcher.Constraint("DistanceX", 1, 1, 1, 2, 113.303164))
sketch9.addConstraint(Sketcher.Constraint("DistanceX", -1, 1, 1, 2, 156.900391))
pocket6 = body.newObject("PartDesign::Pocket", "Pocket005")
pocket6.Profile = sketch9
pocket6.Length = 6

# Sketch on XZ plane
sketch10 = body.newObject("Sketcher::SketchObject", "Sketch009")
sketch10.AttachmentSupport = (doc.getObject("XZ_Plane"), [""])
sketch10.MapMode = "FlatFace"
sketch10.AttachmentOffset = App.Placement(V(0, 0, -187), App.Rotation())
sketch10.addGeometry(Part.Circle(V(194.2, 8, 0), V(0, 0, 1), 1.6), False)
sketch10.addGeometry(Part.Circle(V(5.8, 8, 0), V(0, 0, 1), 1.6), False)
sketch10.addConstraint(Sketcher.Constraint("Equal", 0, 1))
sketch10.addConstraint(Sketcher.Constraint("Horizontal", 0, 3, 1, 3))
sketch10.addConstraint(Sketcher.Constraint("Diameter", 0, 3.2))
sketch10.addConstraint(Sketcher.Constraint("DistanceY", -1, 1, 0, 3, 8.0))
sketch10.addConstraint(Sketcher.Constraint("DistanceX", -1, 1, 0, 3, 194.2))
sketch10.addConstraint(Sketcher.Constraint("DistanceX", -1, 1, 1, 3, 5.8))
pocket7 = body.newObject("PartDesign::Pocket", "Pocket006")
pocket7.Profile = sketch10
pocket7.Length = 10

doc.recompute()
